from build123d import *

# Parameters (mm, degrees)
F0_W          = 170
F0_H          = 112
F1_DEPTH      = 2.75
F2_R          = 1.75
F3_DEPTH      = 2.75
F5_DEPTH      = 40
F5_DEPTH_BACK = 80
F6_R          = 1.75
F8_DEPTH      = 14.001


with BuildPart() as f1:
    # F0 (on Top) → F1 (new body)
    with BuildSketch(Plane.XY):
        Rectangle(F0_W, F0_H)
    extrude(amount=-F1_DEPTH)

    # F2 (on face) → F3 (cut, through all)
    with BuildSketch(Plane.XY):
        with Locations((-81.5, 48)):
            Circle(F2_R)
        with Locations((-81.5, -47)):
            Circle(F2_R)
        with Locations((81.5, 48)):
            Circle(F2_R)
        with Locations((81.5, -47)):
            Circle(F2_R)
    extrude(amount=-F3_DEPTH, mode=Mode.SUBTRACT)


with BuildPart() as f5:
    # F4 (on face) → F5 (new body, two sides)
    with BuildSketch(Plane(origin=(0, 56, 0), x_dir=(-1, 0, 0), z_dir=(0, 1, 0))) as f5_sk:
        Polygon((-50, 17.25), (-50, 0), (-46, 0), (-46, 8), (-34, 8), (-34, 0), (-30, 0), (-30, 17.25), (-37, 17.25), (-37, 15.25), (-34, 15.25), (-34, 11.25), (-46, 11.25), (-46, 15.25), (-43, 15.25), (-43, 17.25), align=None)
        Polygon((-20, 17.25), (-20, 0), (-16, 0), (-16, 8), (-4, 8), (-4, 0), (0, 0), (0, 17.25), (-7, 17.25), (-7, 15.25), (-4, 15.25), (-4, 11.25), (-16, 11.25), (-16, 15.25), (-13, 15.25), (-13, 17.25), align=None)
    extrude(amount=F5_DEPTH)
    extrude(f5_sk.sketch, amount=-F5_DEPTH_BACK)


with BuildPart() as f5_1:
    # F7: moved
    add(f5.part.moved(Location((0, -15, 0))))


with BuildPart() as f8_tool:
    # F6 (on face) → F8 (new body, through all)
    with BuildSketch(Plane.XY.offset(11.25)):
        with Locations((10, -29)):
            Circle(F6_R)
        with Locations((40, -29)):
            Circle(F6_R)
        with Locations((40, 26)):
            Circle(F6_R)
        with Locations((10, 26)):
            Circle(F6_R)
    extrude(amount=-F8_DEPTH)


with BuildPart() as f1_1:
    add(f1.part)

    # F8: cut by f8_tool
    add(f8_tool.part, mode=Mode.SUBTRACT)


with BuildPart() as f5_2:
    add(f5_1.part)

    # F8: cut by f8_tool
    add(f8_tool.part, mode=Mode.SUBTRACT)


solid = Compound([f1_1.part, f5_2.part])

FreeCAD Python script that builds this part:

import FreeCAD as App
import Part
import Sketcher
from FreeCAD import Vector

doc = App.newDocument("Part")
body = doc.addObject("PartDesign::Body", "Body")

# Sketch on XY plane
sketch1 = body.newObject("Sketcher::SketchObject", "Sketch")
sketch1.AttachmentSupport = (doc.getObject("XY_Plane"), [""])
sketch1.MapMode = "FlatFace"
sketch1.addGeometry(Part.LineSegment(Vector(-85, 56, 0), Vector(-85, -56, 0)), False)
sketch1.addGeometry(Part.LineSegment(Vector(-85, -56, 0), Vector(85, -56, 0)), False)
sketch1.addGeometry(Part.LineSegment(Vector(85, -56, 0), Vector(85, 56, 0)), False)
sketch1.addGeometry(Part.LineSegment(Vector(85, 56, 0), Vector(-85, 56, 0)), False)
sketch1.addConstraint(Sketcher.Constraint("Coincident", 0, 2, 1, 1))
sketch1.addConstraint(Sketcher.Constraint("Coincident", 1, 2, 2, 1))
sketch1.addConstraint(Sketcher.Constraint("Coincident", 2, 2, 3, 1))
sketch1.addConstraint(Sketcher.Constraint("Coincident", 3, 2, 0, 1))
sketch1.addConstraint(Sketcher.Constraint("Vertical", 0))
sketch1.addConstraint(Sketcher.Constraint("Horizontal", 1))
sketch1.addConstraint(Sketcher.Constraint("Vertical", 2))
sketch1.addConstraint(Sketcher.Constraint("Horizontal", 3))
sketch1.addConstraint(Sketcher.Constraint("Symmetric", 0, 2, 2, 2, -1, 1))
sketch1.addConstraint(Sketcher.Constraint("DistanceX", 1, 1, 1, 2, 170.0))
sketch1.addConstraint(Sketcher.Constraint("DistanceY", 0, 2, 0, 1, 112.0))
pad1 = body.newObject("PartDesign::Pad", "Pad")
pad1.Profile = sketch1
pad1.Length = 2.75
pad1.Reversed = True

# Sketch on XY plane
sketch2 = body.newObject("Sketcher::SketchObject", "Sketch001")
sketch2.AttachmentSupport = (doc.getObject("XY_Plane"), [""])
sketch2.MapMode = "FlatFace"
sketch2.addGeometry(Part.Circle(Vector(-81.5, 48, 0), Vector(0, 0, 1), 1.8), False)
sketch2.addGeometry(Part.Circle(Vector(-81.5, -47, 0), Vector(0, 0, 1), 1.8), False)
sketch2.addGeometry(Part.Circle(Vector(81.5, 48, 0), Vector(0, 0, 1), 1.8), False)
sketch2.addGeometry(Part.Circle(Vector(81.5, -47, 0), Vector(0, 0, 1), 1.8), False)
sketch2.addConstraint(Sketcher.Constraint("Equal", 0, 1))
sketch2.addConstraint(Sketcher.Constraint("Equal", 1, 2))
sketch2.addConstraint(Sketcher.Constraint("Equal", 2, 3))
sketch2.addConstraint(Sketcher.Constraint("Symmetric", 0, 3, 2, 3, -2))
sketch2.addConstraint(Sketcher.Constraint("Symmetric", 1, 3, 3, 3, -2))
sketch2.addConstraint(Sketcher.Constraint("Vertical", 0, 3, 1, 3))
sketch2.addConstraint(Sketcher.Constraint("Diameter", 0, 3.5))
sketch2.addConstraint(Sketcher.Constraint("DistanceY", -1, 1, 0, 3, 48.0))
sketch2.addConstraint(Sketcher.Constraint("DistanceY", 1, 3, -1, 1, 47.0))
sketch2.addConstraint(Sketcher.Constraint("DistanceX", 0, 3, 2, 3, 163.0))
pocket1 = body.newObject("PartDesign::Pocket", "Pocket")
pocket1.Profile = sketch2
pocket1.Type = "ThroughAll"
body2 = doc.addObject("PartDesign::Body", "Body001")
body2.AllowCompound = True

# Sketch on XZ plane
sketch3 = body2.newObject("Sketcher::SketchObject", "Sketch002")
sketch3.AttachmentSupport = (doc.getObject("XZ_Plane001"), [""])
sketch3.MapMode = "FlatFace"
sketch3.AttachmentOffset = App.Placement(Vector(0, 0, -56), App.Rotation())
sketch3.addGeometry(Part.LineSegment(Vector(50, 17.2, 0), Vector(50, 0, 0)), False)
sketch3.addGeometry(Part.LineSegment(Vector(50, 0, 0), Vector(46, 0, 0)), False)
sketch3.addGeometry(Part.LineSegment(Vector(46, 0, 0), Vector(46, 8, 0)), False)
sketch3.addGeometry(Part.LineSegment(Vector(46, 8, 0), Vector(34, 8, 0)), False)
sketch3.addGeometry(Part.LineSegment(Vector(34, 8, 0), Vector(34, 0, 0)), False)
sketch3.addGeometry(Part.LineSegment(Vector(34, 0, 0), Vector(30, 0, 0)), False)
sketch3.addGeometry(Part.LineSegment(Vector(30, 0, 0), Vector(30, 17.2, 0)), False)
sketch3.addGeometry(Part.LineSegment(Vector(30, 17.2, 0), Vector(37, 17.2, 0)), False)
sketch3.addGeometry(Part.LineSegment(Vector(37, 17.2, 0), Vector(37, 15.2, 0)), False)
sketch3.addGeometry(Part.LineSegment(Vector(37, 15.2, 0), Vector(34, 15.2, 0)), False)
sketch3.addGeometry(Part.LineSegment(Vector(34, 15.2, 0), Vector(34, 11.2, 0)), False)
sketch3.addGeometry(Part.LineSegment(Vector(34, 11.2, 0), Vector(46, 11.2, 0)), False)
sketch3.addGeometry(Part.LineSegment(Vector(46, 11.2, 0), Vector(46, 15.2, 0)), False)
sketch3.addGeometry(Part.LineSegment(Vector(46, 15.2, 0), Vector(43, 15.2, 0)), False)
sketch3.addGeometry(Part.LineSegment(Vector(43, 15.2, 0), Vector(43, 17.2, 0)), False)
sketch3.addGeometry(Part.LineSegment(Vector(43, 17.2, 0), Vector(50, 17.2, 0)), False)
sketch3.addGeometry(Part.LineSegment(Vector(20, 17.2, 0), Vector(20, 0, 0)), False)
sketch3.addGeometry(Part.LineSegment(Vector(20, 0, 0), Vector(16, 0, 0)), False)
sketch3.addGeometry(Part.LineSegment(Vector(16, 0, 0), Vector(16, 8, 0)), False)
sketch3.addGeometry(Part.LineSegment(Vector(16, 8, 0), Vector(4, 8, 0)), False)
sketch3.addGeometry(Part.LineSegment(Vector(4, 8, 0), Vector(4, 0, 0)), False)
sketch3.addGeometry(Part.LineSegment(Vector(4, 0, 0), Vector(0, 0, 0)), False)
sketch3.addGeometry(Part.LineSegment(Vector(0, 0, 0), Vector(0, 17.2, 0)), False)
sketch3.addGeometry(Part.LineSegment(Vector(0, 17.2, 0), Vector(7, 17.2, 0)), False)
sketch3.addGeometry(Part.LineSegment(Vector(7, 17.2, 0), Vector(7, 15.2, 0)), False)
sketch3.addGeometry(Part.LineSegment(Vector(7, 15.2, 0), Vector(4, 15.2, 0)), False)
sketch3.addGeometry(Part.LineSegment(Vector(4, 15.2, 0), Vector(4, 11.2, 0)), False)
sketch3.addGeometry(Part.LineSegment(Vector(4, 11.2, 0), Vector(16, 11.2, 0)), False)
sketch3.addGeometry(Part.LineSegment(Vector(16, 11.2, 0), Vector(16, 15.2, 0)), False)
sketch3.addGeometry(Part.LineSegment(Vector(16, 15.2, 0), Vector(13, 15.2, 0)), False)
sketch3.addGeometry(Part.LineSegment(Vector(13, 15.2, 0), Vector(13, 17.2, 0)), False)
sketch3.addGeometry(Part.LineSegment(Vector(13, 17.2, 0), Vector(20, 17.2, 0)), False)
sketch3.addConstraint(Sketcher.Constraint("Coincident", 0, 2, 1, 1))
sketch3.addConstraint(Sketcher.Constraint("Coincident", 1, 2, 2, 1))
sketch3.addConstraint(Sketcher.Constraint("Coincident", 2, 2, 3, 1))
sketch3.addConstraint(Sketcher.Constraint("Coincident", 3, 2, 4, 1))
sketch3.addConstraint(Sketcher.Constraint("Coincident", 4, 2, 5, 1))
sketch3.addConstraint(Sketcher.Constraint("Coincident", 5, 2, 6, 1))
sketch3.addConstraint(Sketcher.Constraint("Coincident", 6, 2, 7, 1))
sketch3.addConstraint(Sketcher.Constraint("Coincident", 7, 2, 8, 1))
sketch3.addConstraint(Sketcher.Constraint("Coincident", 8, 2, 9, 1))
sketch3.addConstraint(Sketcher.Constraint("Coincident", 9, 2, 10, 1))
sketch3.addConstraint(Sketcher.Constraint("Coincident", 10, 2, 11, 1))
sketch3.addConstraint(Sketcher.Constraint("Coincident", 11, 2, 12, 1))
sketch3.addConstraint(Sketcher.Constraint("Coincident", 12, 2, 13, 1))
sketch3.addConstraint(Sketcher.Constraint("Coincident", 13, 2, 14, 1))
sketch3.addConstraint(Sketcher.Constraint("Coincident", 14, 2, 15, 1))
sketch3.addConstraint(Sketcher.Constraint("Coincident", 15, 2, 0, 1))
sketch3.addConstraint(Sketcher.Constraint("Coincident", 16, 2, 17, 1))
sketch3.addConstraint(Sketcher.Constraint("Coincident", 17, 2, 18, 1))
sketch3.addConstraint(Sketcher.Constraint("Coincident", 18, 2, 19, 1))
sketch3.addConstraint(Sketcher.Constraint("Coincident", 19, 2, 20, 1))
sketch3.addConstraint(Sketcher.Constraint("Coincident", 20, 2, 21, 1))
sketch3.addConstraint(Sketcher.Constraint("Coincident", 21, 2, 22, 1))
sketch3.addConstraint(Sketcher.Constraint("Coincident", 22, 2, 23, 1))
sketch3.addConstraint(Sketcher.Constraint("Coincident", 23, 2, 24, 1))
sketch3.addConstraint(Sketcher.Constraint("Coincident", 24, 2, 25, 1))
sketch3.addConstraint(Sketcher.Constraint("Coincident", 25, 2, 26, 1))
sketch3.addConstraint(Sketcher.Constraint("Coincident", 26, 2, 27, 1))
sketch3.addConstraint(Sketcher.Constraint("Coincident", 27, 2, 28, 1))
sketch3.addConstraint(Sketcher.Constraint("Coincident", 28, 2, 29, 1))
sketch3.addConstraint(Sketcher.Constraint("Coincident", 29, 2, 30, 1))
sketch3.addConstraint(Sketcher.Constraint("Coincident", 30, 2, 31, 1))
sketch3.addConstraint(Sketcher.Constraint("Coincident", 31, 2, 16, 1))
sketch3.addConstraint(Sketcher.Constraint("Vertical", 0))
sketch3.addConstraint(Sketcher.Constraint("Horizontal", 1))
sketch3.addConstraint(Sketcher.Constraint("Vertical", 2))
sketch3.addConstraint(Sketcher.Constraint("Horizontal", 3))
sketch3.addConstraint(Sketcher.Constraint("Vertical", 4))
sketch3.addConstraint(Sketcher.Constraint("Horizontal", 5))
sketch3.addConstraint(Sketcher.Constraint("Vertical", 6))
sketch3.addConstraint(Sketcher.Constraint("Horizontal", 7))
sketch3.addConstraint(Sketcher.Constraint("Vertical", 8))
sketch3.addConstraint(Sketcher.Constraint("Horizontal", 9))
sketch3.addConstraint(Sketcher.Constraint("Vertical", 10))
sketch3.addConstraint(Sketcher.Constraint("Horizontal", 11))
sketch3.addConstraint(Sketcher.Constraint("Vertical", 12))
sketch3.addConstraint(Sketcher.Constraint("Horizontal", 13))
sketch3.addConstraint(Sketcher.Constraint("Vertical", 14))
sketch3.addConstraint(Sketcher.Constraint("Horizontal", 15))
sketch3.addConstraint(Sketcher.Constraint("Vertical", 16))
sketch3.addConstraint(Sketcher.Constraint("Horizontal", 17))
sketch3.addConstraint(Sketcher.Constraint("Vertical", 18))
sketch3.addConstraint(Sketcher.Constraint("Horizontal", 19))
sketch3.addConstraint(Sketcher.Constraint("Vertical", 20))
sketch3.addConstraint(Sketcher.Constraint("Horizontal", 21))
sketch3.addConstraint(Sketcher.Constraint("Vertical", 22))
sketch3.addConstraint(Sketcher.Constraint("Horizontal", 23))
sketch3.addConstraint(Sketcher.Constraint("Vertical", 24))
sketch3.addConstraint(Sketcher.Constraint("Horizontal", 25))
sketch3.addConstraint(Sketcher.Constraint("Vertical", 26))
sketch3.addConstraint(Sketcher.Constraint("Horizontal", 27))
sketch3.addConstraint(Sketcher.Constraint("Vertical", 28))
sketch3.addConstraint(Sketcher.Constraint("Horizontal", 29))
sketch3.addConstraint(Sketcher.Constraint("Vertical", 30))
sketch3.addConstraint(Sketcher.Constraint("Horizontal", 31))
sketch3.addConstraint(Sketcher.Constraint("Coincident", 21, 2, -1, 1))
sketch3.addConstraint(Sketcher.Constraint("PointOnObject", 0, 2, -1))
sketch3.addConstraint(Sketcher.Constraint("PointOnObject", 4, 2, -1))
sketch3.addConstraint(Sketcher.Constraint("PointOnObject", 16, 2, -1))
sketch3.addConstraint(Sketcher.Constraint("Horizontal", 9, 2, 12, 2))
sketch3.addConstraint(Sketcher.Constraint("Horizontal", 7, 2, 14, 2))
sketch3.addConstraint(Sketcher.Constraint("Horizontal", 3, 2, 18, 2))
sketch3.addConstraint(Sketcher.Constraint("Horizontal", 15, 2, 22, 2))
sketch3.addConstraint(Sketcher.Constraint("Horizontal", 13, 2, 24, 2))
sketch3.addConstraint(Sketcher.Constraint("Horizontal", 11, 2, 26, 2))
sketch3.addConstraint(Sketcher.Constraint("Horizontal", 25, 2, 28, 2))
sketch3.addConstraint(Sketcher.Constraint("Horizontal", 23, 2, 30, 2))
sketch3.addConstraint(Sketcher.Constraint("Vertical", 4, 2, 9, 2))
sketch3.addConstraint(Sketcher.Constraint("Vertical", 2, 2, 11, 2))
sketch3.addConstraint(Sketcher.Constraint("Vertical", 20, 2, 25, 2))
sketch3.addConstraint(Sketcher.Constraint("Vertical", 18, 2, 27, 2))
sketch3.addConstraint(Sketcher.Constraint("Equal", 1, 5))
sketch3.addConstraint(Sketcher.Constraint("Equal", 9, 13))
sketch3.addConstraint(Sketcher.Constraint("Equal", 5, 17))
sketch3.addConstraint(Sketcher.Constraint("Equal", 11, 19))
sketch3.addConstraint(Sketcher.Constraint("Equal", 17, 21))
sketch3.addConstraint(Sketcher.Constraint("Equal", 15, 23))
sketch3.addConstraint(Sketcher.Constraint("Equal", 25, 29))
sketch3.addConstraint(Sketcher.Constraint("Equal", 21, 10))
sketch3.addConstraint(Sketcher.Constraint("DistanceX", 1, 2, 1, 1, 4.0))
sketch3.addConstraint(Sketcher.Constraint("DistanceX", 3, 2, 3, 1, 12.0))
sketch3.addConstraint(Sketcher.Constraint("DistanceX", 7, 1, 7, 2, 7.0))
sketch3.addConstraint(Sketcher.Constraint("DistanceY", 2, 1, 2, 2, 8.0))
sketch3.addConstraint(Sketcher.Constraint("DistanceY", 8, 2, 8, 1, 2.0))
sketch3.addConstraint(Sketcher.Constraint("DistanceX", -1, 1, 0, 2, 50.0))
sketch3.addConstraint(Sketcher.Constraint("DistanceY", 0, 2, 0, 1, 17.25))
pad2 = body2.newObject("PartDesign::Pad", "Pad001")
pad2.Profile = sketch3
pad2.Type = "TwoLengths"
pad2.Length = 40
pad2.Length2 = 80
pad2.Reversed = True
body3 = doc.addObject("PartDesign::Body", "Body002")
body3.AllowCompound = True
doc.recompute()

body2.Placement = App.Placement(Vector(0, -15, 0), App.Rotation(Vector(0, 0, 1), 0))
boolean = body3.newObject("PartDesign::Boolean", "Boolean")
boolean.Type = "Fuse"
boolean.addObjects([body2])
body4 = doc.addObject("PartDesign::Body", "Body003")
body4.AllowCompound = True

# Sketch on XY plane
sketch4 = body4.newObject("Sketcher::SketchObject", "Sketch003")
sketch4.AttachmentSupport = (doc.getObject("XY_Plane003"), [""])
sketch4.MapMode = "FlatFace"
sketch4.AttachmentOffset = App.Placement(Vector(0, 0, 11.25), App.Rotation())
sketch4.addGeometry(Part.Circle(Vector(10, -29, 0), Vector(0, 0, 1), 1.8), False)
sketch4.addGeometry(Part.Circle(Vector(40, -29, 0), Vector(0, 0, 1), 1.8), False)
sketch4.addGeometry(Part.Circle(Vector(40, 26, 0), Vector(0, 0, 1), 1.8), False)
sketch4.addGeometry(Part.Circle(Vector(10, 26, 0), Vector(0, 0, 1), 1.8), False)
sketch4.addConstraint(Sketcher.Constraint("Equal", 0, 1))
sketch4.addConstraint(Sketcher.Constraint("Equal", 1, 2))
sketch4.addConstraint(Sketcher.Constraint("Equal", 2, 3))
sketch4.addConstraint(Sketcher.Constraint("Horizontal", 0, 3, 1, 3))
sketch4.addConstraint(Sketcher.Constraint("Horizontal", 2, 3, 3, 3))
sketch4.addConstraint(Sketcher.Constraint("Vertical", 1, 3, 2, 3))
sketch4.addConstraint(Sketcher.Constraint("Vertical", 0, 3, 3, 3))
sketch4.addConstraint(Sketcher.Constraint("Diameter", 0, 3.5))
sketch4.addConstraint(Sketcher.Constraint("DistanceX", -1, 1, 0, 3, 10.0))
sketch4.addConstraint(Sketcher.Constraint("DistanceY", 0, 3, -1, 1, 29.0))
sketch4.addConstraint(Sketcher.Constraint("DistanceX", -1, 1, 1, 3, 40.0))
sketch4.addConstraint(Sketcher.Constraint("DistanceY", -1, 1, 2, 3, 26.0))
pad3 = body4.newObject("PartDesign::Pad", "Pad002")
pad3.Profile = sketch4
pad3.Length = 14.001
pad3.Reversed = True
doc.recompute()

body5 = doc.addObject("PartDesign::Body", "Body004")
body5.BaseFeature = body4
boolean2 = body.newObject("PartDesign::Boolean", "Boolean001")
boolean2.Type = "Cut"
boolean2.addObjects([body5])
doc.recompute()
body3.AllowCompound = True
doc.recompute()

boolean3 = body3.newObject("PartDesign::Boolean", "Boolean002")
boolean3.Type = "Cut"
boolean3.addObjects([body4])

doc.recompute()
